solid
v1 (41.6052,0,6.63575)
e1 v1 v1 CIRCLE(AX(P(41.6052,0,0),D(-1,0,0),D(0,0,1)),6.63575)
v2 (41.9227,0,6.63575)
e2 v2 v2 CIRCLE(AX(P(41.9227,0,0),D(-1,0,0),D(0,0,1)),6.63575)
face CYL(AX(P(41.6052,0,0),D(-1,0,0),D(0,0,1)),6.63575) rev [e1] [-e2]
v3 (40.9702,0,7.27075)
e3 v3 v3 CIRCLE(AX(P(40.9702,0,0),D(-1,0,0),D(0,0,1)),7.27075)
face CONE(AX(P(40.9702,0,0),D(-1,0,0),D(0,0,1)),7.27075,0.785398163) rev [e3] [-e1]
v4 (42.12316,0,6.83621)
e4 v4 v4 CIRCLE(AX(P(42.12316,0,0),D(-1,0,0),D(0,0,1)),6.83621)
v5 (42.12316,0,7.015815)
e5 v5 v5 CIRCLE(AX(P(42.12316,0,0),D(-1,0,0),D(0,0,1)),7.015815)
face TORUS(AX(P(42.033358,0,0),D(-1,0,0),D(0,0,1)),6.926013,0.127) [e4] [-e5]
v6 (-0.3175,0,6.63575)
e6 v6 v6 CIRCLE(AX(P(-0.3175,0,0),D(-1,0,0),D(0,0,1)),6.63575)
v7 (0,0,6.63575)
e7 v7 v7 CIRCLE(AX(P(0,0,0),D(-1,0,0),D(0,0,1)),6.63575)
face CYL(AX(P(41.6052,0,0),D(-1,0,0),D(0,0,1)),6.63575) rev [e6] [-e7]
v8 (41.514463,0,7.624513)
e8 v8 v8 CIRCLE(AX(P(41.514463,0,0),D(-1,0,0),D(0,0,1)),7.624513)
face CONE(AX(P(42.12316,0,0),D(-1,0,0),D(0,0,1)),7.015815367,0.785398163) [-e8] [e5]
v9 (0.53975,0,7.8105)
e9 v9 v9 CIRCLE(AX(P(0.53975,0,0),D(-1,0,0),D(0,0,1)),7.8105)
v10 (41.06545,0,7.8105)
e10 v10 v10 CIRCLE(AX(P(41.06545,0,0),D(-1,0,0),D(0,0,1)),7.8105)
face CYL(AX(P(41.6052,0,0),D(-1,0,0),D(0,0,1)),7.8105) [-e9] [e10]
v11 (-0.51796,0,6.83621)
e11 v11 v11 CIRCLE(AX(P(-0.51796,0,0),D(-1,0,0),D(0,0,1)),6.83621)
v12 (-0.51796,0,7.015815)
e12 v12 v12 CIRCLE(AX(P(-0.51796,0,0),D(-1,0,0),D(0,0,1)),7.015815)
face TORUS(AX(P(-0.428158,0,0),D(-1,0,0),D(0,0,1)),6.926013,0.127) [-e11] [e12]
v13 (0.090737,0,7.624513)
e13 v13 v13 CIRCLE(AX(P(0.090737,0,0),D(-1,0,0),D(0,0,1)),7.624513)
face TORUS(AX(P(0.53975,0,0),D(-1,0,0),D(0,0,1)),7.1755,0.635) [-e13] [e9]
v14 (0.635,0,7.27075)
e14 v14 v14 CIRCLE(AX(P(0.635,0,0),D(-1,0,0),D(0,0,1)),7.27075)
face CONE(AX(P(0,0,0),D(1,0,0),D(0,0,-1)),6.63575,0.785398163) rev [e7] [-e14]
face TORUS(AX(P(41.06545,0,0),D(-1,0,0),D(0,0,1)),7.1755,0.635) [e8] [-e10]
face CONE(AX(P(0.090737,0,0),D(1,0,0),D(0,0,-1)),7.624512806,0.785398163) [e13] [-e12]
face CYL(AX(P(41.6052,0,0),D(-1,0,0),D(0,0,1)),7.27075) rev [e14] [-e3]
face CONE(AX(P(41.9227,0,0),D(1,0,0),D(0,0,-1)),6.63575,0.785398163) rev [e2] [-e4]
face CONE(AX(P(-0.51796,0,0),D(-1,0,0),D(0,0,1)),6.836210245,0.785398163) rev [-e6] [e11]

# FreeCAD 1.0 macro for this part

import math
import FreeCAD as App
import Part
import Sketcher

V = App.Vector
Q = App.Units.Quantity

doc = App.newDocument("Part")
body = doc.addObject("PartDesign::Body", "Body")

# Sketch on XY plane
sketch1 = body.newObject("Sketcher::SketchObject", "Sketch")
sketch1.AttachmentSupport = (doc.getObject("XY_Plane"), [""])
sketch1.MapMode = "FlatFace"
sketch1.addGeometry([
    Part.LineSegment(V(-0.51796, 6.83621, 0), V(-0.3175, 6.63575, 0)),  # 0
    Part.LineSegment(V(-0.3175, 6.63575, 0), V(0, 6.63575, 0)),  # 1
    Part.LineSegment(V(0, 6.63575, 0), V(0.635, 7.27075, 0)),  # 2
    Part.LineSegment(V(0.635, 7.27075, 0), V(40.9702, 7.27075, 0)),  # 3
    Part.LineSegment(V(40.9702, 7.27075, 0), V(41.6052, 6.63575, 0)),  # 4
    Part.LineSegment(V(41.6052, 6.63575, 0), V(41.9227, 6.63575, 0)),  # 5
    Part.LineSegment(V(41.9227, 6.63575, 0), V(42.12316, 6.83621, 0)),  # 6
    Part.ArcOfCircle(Part.Circle(V(42.033358, 6.926013, 0), V(0, 0, 1), 0.127), math.radians(-45), math.radians(45)),  # 7
    Part.LineSegment(V(42.12316, 7.015815, 0), V(41.514463, 7.624513, 0)),  # 8
    Part.ArcOfCircle(Part.Circle(V(41.06545, 7.1755, 0), V(0, 0, 1), 0.635), math.radians(45), math.radians(90)),  # 9
    Part.LineSegment(V(41.06545, 7.8105, 0), V(0.53975, 7.8105, 0)),  # 10
    Part.ArcOfCircle(Part.Circle(V(0.53975, 7.1755, 0), V(0, 0, 1), 0.635), math.radians(90), math.radians(135)),  # 11
    Part.LineSegment(V(0.090737, 7.624513, 0), V(-0.51796, 7.015815, 0)),  # 12
    Part.ArcOfCircle(Part.Circle(V(-0.428158, 6.926013, 0), V(0, 0, 1), 0.127), math.radians(135), math.radians(225)),  # 13
], False)
sketch1.addConstraint([
    Sketcher.Constraint("Coincident", 0, 2, 1, 1),
    Sketcher.Constraint("Coincident", 1, 2, 2, 1),
    Sketcher.Constraint("Coincident", 2, 2, 3, 1),
    Sketcher.Constraint("Coincident", 3, 2, 4, 1),
    Sketcher.Constraint("Coincident", 4, 2, 5, 1),
    Sketcher.Constraint("Coincident", 5, 2, 6, 1),
    Sketcher.Constraint("Tangent", 6, 2, 7, 1),
    Sketcher.Constraint("Tangent", 7, 2, 8, 1),
    Sketcher.Constraint("Tangent", 8, 2, 9, 1),
    Sketcher.Constraint("Tangent", 9, 2, 10, 1),
    Sketcher.Constraint("Tangent", 10, 2, 11, 1),
    Sketcher.Constraint("Tangent", 11, 2, 12, 1),
    Sketcher.Constraint("Tangent", 12, 2, 13, 1),
    Sketcher.Constraint("Tangent", 13, 2, 0, 1),
    Sketcher.Constraint("Horizontal", 1),
    Sketcher.Constraint("Horizontal", 3),
    Sketcher.Constraint("Horizontal", 5),
    Sketcher.Constraint("Horizontal", 10),
    Sketcher.Constraint("Equal", 9, 11),
    Sketcher.Constraint("Equal", 7, 13),
    Sketcher.Constraint("PointOnObject", 1, 2, -2),
    Sketcher.Constraint("Perpendicular", 0, 2),
    Sketcher.Constraint("Perpendicular", 2, 4),
    Sketcher.Constraint("Perpendicular", 4, 6),
    Sketcher.Constraint("Perpendicular", 6, 8),
    Sketcher.Constraint("Perpendicular", 8, 12),
    Sketcher.Constraint("Horizontal", 7, 3, 13, 3),
    Sketcher.Constraint("Horizontal", 1, 2, 4, 2),
    Sketcher.Constraint("Horizontal", 8, 2, 11, 2),
    Sketcher.Constraint("Equal", 1, 5),
    Sketcher.Constraint("Radius", 7, Q("0.005 in")),
    Sketcher.Constraint("Radius", 9, Q("0.025 in")),
    Sketcher.Constraint("DistanceX", 3, 1, 3, 2, Q("1.588 in")),
    Sketcher.Constraint("DistanceX", 1, 1, 1, 2, Q("0.0125 in")),
    Sketcher.Constraint("DistanceX", 10, 2, 10, 1, Q("1.5955 in")),
    Sketcher.Constraint("DistanceX", -1, 1, 2, 2, Q("0.025 in")),
    Sketcher.Constraint("DistanceY", -1, 1, 9, 3, Q("0.2825 in")),
    Sketcher.Constraint("DistanceY", 7, 3, 8, 2, Q("0.0275 in")),
])
revolution = body.newObject("PartDesign::Revolution", "Revolution")
revolution.Profile = sketch1
revolution.ReferenceAxis = (sketch1, ["H_Axis"])
revolution.Angle = 360

doc.recompute()
